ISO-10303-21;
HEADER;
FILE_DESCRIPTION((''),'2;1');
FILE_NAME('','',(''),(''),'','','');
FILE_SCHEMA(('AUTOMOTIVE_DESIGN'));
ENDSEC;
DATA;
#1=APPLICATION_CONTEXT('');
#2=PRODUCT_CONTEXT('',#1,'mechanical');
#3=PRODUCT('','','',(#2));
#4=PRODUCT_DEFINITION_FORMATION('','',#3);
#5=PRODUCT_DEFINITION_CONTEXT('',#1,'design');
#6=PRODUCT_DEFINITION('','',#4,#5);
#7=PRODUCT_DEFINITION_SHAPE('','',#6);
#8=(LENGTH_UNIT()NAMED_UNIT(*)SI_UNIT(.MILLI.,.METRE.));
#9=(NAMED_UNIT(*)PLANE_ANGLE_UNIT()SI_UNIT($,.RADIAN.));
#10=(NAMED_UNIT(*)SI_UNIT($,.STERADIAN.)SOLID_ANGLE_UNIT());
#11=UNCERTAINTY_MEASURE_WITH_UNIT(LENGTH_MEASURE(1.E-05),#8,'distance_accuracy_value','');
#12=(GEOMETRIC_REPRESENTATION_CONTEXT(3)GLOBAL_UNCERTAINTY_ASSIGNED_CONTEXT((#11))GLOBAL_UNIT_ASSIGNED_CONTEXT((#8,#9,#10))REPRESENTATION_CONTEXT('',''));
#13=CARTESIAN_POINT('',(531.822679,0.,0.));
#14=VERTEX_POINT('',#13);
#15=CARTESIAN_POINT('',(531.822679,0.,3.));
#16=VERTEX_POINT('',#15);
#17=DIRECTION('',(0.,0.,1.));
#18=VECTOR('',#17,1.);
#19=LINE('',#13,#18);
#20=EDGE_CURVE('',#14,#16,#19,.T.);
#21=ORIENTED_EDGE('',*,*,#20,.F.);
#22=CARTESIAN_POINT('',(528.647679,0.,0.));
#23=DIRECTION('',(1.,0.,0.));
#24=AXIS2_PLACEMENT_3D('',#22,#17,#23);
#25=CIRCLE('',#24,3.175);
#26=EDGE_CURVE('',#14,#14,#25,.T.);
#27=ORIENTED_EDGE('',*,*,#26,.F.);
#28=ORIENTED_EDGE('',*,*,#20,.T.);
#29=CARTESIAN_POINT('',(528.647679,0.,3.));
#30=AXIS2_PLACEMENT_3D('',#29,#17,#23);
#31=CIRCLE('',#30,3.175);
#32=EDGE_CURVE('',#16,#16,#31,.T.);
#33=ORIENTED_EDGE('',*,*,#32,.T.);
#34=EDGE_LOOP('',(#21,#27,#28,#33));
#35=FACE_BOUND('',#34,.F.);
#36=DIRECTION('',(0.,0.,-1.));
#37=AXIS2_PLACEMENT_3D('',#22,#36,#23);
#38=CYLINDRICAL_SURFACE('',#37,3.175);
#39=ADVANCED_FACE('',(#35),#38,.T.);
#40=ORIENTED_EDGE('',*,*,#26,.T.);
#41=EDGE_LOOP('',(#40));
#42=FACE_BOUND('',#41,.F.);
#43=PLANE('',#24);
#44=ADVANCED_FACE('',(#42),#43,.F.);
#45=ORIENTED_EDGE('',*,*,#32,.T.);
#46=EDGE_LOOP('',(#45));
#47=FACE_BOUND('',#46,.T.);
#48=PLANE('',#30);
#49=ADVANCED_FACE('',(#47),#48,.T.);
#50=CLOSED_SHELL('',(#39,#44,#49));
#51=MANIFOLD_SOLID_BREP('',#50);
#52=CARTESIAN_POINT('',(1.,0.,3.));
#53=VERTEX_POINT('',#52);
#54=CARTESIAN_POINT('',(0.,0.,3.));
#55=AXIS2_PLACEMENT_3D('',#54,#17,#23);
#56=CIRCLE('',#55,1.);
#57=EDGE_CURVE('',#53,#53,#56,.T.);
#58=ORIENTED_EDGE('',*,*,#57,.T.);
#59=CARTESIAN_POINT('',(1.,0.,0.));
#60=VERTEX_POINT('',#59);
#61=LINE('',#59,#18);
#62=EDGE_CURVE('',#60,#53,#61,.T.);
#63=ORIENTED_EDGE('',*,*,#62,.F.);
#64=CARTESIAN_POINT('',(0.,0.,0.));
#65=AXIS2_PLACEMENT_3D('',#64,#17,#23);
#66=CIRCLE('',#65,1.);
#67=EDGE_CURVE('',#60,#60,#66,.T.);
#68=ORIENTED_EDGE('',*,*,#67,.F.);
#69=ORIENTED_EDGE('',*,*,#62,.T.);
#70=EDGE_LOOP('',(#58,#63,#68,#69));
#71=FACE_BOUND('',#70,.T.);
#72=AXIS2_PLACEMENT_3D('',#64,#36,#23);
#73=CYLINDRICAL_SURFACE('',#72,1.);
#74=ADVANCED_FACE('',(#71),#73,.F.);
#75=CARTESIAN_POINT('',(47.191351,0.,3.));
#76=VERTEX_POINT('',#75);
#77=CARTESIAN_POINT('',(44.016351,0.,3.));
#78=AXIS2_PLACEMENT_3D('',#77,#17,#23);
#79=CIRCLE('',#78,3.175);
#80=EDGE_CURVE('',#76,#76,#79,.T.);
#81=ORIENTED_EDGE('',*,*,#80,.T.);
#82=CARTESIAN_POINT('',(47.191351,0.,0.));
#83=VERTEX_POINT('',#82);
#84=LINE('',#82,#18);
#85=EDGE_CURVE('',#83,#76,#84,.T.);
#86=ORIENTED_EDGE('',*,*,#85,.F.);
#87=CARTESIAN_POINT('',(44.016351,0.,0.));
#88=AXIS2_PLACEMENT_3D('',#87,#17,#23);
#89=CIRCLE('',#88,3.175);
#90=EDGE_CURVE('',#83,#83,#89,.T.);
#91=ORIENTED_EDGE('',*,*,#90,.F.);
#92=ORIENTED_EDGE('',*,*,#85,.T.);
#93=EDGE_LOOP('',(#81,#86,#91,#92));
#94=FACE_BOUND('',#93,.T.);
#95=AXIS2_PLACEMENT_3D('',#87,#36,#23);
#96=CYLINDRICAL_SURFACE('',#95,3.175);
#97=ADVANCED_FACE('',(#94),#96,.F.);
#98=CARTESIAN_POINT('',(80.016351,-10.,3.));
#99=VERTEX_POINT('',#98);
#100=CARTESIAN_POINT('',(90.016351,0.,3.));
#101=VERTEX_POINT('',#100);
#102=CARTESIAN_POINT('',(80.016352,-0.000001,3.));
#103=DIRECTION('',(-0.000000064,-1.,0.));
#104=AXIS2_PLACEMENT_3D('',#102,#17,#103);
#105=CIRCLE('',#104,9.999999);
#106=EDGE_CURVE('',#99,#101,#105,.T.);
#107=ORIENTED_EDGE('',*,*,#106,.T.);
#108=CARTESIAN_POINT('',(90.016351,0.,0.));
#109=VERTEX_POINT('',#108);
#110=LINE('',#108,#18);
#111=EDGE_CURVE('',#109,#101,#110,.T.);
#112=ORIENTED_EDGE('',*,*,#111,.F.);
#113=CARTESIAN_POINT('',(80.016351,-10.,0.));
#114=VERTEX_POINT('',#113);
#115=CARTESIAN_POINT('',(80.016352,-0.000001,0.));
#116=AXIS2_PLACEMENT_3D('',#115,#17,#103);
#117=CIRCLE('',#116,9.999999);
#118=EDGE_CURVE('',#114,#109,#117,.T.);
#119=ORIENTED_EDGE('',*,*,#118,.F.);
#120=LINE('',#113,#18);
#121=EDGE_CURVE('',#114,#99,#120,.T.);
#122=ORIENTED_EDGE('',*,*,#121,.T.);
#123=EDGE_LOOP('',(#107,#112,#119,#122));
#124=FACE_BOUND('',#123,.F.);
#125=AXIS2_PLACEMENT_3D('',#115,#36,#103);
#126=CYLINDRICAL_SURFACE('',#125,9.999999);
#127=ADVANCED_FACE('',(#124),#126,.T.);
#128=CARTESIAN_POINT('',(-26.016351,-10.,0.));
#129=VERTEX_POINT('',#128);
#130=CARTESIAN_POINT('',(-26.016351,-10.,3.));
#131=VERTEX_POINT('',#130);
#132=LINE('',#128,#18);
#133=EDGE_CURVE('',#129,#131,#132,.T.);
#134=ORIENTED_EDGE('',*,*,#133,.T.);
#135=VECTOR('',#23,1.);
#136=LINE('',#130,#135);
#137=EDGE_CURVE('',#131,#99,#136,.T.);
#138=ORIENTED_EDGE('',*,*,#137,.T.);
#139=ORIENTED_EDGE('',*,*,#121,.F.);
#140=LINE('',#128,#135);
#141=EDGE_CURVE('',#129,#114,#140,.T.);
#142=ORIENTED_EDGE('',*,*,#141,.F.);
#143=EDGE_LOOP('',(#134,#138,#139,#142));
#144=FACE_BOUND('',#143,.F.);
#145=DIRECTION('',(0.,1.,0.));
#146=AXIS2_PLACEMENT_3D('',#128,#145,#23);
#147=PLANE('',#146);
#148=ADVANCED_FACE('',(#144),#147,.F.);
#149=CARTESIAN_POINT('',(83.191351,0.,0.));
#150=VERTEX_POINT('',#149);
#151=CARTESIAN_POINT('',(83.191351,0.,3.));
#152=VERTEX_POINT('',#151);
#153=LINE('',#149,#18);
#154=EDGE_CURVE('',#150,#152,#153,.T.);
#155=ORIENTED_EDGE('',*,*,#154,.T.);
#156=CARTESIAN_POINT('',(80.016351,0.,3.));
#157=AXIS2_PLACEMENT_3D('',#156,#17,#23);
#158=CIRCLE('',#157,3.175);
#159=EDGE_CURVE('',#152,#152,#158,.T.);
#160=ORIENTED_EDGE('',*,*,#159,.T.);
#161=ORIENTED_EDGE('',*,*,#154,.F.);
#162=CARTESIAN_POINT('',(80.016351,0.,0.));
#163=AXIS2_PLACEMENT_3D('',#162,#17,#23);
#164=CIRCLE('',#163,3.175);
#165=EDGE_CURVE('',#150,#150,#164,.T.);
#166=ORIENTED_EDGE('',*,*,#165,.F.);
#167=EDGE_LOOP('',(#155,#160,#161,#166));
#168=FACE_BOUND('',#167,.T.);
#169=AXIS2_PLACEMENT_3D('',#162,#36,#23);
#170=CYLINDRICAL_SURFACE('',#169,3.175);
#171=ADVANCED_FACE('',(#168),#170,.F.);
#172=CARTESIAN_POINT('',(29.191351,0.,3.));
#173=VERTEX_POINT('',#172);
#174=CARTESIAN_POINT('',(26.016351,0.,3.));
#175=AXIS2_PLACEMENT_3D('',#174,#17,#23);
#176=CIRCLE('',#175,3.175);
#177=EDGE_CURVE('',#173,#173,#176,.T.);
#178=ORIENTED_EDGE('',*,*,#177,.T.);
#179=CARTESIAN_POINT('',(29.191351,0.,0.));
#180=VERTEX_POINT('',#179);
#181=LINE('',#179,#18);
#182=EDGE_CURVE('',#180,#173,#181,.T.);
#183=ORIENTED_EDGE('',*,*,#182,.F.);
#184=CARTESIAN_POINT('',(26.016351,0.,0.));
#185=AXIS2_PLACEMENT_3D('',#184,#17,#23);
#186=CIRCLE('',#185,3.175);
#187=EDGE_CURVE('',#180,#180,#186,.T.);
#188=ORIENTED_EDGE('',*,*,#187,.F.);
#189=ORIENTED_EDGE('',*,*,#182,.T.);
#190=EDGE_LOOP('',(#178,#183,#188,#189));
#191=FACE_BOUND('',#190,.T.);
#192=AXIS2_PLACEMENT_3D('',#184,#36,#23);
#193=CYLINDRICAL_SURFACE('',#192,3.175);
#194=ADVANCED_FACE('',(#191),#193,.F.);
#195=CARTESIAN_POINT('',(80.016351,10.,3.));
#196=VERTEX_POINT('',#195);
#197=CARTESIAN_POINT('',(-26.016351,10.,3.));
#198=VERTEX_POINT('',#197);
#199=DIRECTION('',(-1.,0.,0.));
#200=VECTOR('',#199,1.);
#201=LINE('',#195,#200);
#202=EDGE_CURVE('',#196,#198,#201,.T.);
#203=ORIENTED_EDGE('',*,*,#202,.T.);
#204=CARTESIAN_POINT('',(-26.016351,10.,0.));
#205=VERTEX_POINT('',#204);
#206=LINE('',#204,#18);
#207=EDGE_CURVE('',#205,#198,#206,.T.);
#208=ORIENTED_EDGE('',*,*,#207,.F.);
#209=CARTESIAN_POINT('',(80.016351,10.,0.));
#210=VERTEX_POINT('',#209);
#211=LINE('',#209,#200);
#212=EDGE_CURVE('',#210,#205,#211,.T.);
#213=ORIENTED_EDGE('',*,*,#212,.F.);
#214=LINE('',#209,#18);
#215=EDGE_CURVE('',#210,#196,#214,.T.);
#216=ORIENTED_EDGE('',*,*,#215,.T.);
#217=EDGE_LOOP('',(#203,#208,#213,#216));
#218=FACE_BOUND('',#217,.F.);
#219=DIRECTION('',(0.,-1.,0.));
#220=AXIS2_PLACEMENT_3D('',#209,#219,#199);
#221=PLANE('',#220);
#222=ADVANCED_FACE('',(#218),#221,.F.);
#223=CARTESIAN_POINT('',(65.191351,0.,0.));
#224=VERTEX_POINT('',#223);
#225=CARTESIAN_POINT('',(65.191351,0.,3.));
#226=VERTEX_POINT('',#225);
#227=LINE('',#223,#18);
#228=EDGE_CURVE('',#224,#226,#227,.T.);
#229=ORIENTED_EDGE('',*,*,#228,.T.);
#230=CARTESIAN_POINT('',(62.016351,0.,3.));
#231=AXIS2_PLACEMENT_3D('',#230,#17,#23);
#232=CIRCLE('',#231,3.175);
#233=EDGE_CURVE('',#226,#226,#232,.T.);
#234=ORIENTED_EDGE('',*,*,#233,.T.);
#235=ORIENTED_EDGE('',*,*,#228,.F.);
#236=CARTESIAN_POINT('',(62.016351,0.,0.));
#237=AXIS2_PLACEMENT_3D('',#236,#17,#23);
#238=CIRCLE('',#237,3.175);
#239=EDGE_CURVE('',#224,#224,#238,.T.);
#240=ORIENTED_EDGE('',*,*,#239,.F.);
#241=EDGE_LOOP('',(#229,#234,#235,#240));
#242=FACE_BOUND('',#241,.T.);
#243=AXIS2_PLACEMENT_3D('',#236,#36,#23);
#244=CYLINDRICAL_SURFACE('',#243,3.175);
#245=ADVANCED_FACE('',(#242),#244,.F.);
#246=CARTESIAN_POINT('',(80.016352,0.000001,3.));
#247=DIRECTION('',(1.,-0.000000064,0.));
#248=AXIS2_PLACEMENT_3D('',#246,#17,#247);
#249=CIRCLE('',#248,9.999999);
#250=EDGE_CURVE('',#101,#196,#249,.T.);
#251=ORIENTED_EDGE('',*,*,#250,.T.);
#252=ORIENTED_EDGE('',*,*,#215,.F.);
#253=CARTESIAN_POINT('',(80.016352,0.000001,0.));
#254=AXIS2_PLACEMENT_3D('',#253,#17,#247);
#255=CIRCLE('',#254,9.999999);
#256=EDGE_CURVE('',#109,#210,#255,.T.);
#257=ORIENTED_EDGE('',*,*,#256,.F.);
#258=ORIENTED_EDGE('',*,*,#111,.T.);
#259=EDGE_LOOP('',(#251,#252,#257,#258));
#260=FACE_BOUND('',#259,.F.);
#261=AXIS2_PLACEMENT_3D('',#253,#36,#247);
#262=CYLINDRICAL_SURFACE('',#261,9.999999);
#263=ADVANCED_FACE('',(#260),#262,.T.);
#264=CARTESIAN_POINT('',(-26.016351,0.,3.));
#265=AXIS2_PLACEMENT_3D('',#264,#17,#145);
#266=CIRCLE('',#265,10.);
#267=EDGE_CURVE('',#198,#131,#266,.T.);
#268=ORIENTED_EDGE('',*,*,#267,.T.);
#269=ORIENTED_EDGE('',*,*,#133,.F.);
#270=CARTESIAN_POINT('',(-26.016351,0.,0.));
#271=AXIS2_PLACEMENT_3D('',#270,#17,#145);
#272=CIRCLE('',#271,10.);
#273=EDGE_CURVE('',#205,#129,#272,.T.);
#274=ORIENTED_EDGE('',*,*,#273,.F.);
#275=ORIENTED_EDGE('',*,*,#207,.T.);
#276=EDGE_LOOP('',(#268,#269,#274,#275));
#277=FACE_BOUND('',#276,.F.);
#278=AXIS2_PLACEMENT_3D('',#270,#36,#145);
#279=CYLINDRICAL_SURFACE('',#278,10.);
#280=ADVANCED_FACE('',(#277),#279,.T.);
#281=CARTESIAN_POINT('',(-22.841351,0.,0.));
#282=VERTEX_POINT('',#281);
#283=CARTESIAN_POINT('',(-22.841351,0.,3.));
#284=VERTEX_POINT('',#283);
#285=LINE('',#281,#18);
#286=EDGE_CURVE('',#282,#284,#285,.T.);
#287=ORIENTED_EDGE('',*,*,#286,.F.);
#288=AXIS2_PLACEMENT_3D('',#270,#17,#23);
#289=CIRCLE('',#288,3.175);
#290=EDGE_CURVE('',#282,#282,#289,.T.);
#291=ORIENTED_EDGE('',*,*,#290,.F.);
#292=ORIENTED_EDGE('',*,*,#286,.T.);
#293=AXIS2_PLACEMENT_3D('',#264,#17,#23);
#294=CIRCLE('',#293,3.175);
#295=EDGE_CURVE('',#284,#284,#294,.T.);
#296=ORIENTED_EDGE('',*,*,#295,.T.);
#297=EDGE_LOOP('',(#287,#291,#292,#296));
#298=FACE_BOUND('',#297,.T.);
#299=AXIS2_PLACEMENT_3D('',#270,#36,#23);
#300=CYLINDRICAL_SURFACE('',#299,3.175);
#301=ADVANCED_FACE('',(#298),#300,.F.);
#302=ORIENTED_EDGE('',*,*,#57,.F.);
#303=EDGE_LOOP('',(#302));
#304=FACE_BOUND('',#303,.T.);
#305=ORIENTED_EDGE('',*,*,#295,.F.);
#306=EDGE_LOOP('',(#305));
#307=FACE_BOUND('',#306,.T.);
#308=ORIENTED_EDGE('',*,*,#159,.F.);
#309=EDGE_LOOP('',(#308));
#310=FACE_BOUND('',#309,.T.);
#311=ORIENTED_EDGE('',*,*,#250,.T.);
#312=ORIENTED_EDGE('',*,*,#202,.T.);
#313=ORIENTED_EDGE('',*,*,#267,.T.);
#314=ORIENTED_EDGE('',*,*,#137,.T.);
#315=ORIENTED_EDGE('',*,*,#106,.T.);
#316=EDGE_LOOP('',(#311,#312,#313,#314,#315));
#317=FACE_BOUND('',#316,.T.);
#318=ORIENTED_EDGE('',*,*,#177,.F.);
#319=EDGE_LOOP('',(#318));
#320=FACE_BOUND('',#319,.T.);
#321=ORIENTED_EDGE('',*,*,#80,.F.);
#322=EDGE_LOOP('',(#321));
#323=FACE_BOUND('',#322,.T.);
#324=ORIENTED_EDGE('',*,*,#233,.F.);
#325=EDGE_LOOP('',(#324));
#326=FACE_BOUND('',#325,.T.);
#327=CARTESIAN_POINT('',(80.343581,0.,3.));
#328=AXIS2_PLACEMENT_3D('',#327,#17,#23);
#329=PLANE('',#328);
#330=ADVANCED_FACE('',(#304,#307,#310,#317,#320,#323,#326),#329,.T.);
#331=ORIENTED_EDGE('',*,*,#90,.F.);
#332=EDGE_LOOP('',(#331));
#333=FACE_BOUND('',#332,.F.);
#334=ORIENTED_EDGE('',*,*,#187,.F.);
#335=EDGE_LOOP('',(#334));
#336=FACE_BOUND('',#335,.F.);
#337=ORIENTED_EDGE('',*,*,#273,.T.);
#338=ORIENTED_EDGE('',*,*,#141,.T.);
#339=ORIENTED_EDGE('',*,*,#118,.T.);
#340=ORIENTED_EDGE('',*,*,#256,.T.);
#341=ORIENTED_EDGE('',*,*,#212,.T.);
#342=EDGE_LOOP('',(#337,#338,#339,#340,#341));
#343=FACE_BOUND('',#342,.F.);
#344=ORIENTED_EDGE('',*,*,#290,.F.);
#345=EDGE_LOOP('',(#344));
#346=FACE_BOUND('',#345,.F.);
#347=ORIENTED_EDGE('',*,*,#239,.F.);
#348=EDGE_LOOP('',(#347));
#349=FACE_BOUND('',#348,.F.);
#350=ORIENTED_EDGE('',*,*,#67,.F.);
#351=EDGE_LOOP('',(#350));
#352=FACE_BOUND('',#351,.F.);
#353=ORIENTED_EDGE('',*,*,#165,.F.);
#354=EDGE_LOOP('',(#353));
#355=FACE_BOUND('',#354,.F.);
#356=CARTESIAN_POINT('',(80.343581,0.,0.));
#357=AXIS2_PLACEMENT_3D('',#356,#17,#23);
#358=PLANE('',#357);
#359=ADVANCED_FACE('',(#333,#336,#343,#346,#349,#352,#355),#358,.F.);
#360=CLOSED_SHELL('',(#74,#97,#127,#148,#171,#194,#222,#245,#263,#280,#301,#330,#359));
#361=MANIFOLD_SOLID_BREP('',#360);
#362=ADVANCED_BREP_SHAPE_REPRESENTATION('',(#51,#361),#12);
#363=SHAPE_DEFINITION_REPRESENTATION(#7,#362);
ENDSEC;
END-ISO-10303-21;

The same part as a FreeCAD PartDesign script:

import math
import FreeCAD as App
import Part
import Sketcher

V = App.Vector

doc = App.newDocument("Part")
params = doc.addObject("Spreadsheet::Sheet", "Params")
for row, (alias, value) in enumerate([
    ("sketch1_diameter", "2 mm"),
    ("sketch1_radius", "9.999999 mm"),
    ("sketch1_diameter2", "6.35 mm"),
    ("pad1_length", "3 mm"),
], start=1):
    params.set(f"A{row}", alias)
    params.set(f"B{row}", "=" + value)
    params.setAlias(f"B{row}", alias)

body = doc.addObject("PartDesign::Body", "Body")
body.AllowCompound = True

# Sketch on XY plane
sketch1 = doc.addObject("Sketcher::SketchObject", "Sketch")
body.addObject(sketch1)
sketch1.AttachmentSupport = (doc.XY_Plane, [""])
sketch1.MapMode = "FlatFace"
sketch1.addGeometry([
    Part.Circle(V(528.647679, 0, 0), V(0, 0, 1), 3.175),  # 0
    Part.ArcOfCircle(Part.Circle(V(80.016352, -0.000001, 0), V(0, 0, 1), 9.999999), math.radians(-90.000004), math.radians(0.000004)),  # 1
    Part.ArcOfCircle(Part.Circle(V(80.016352, 0.000001, 0), V(0, 0, 1), 9.999999), math.radians(-0.000004), math.radians(90.000004)),  # 2
    Part.LineSegment(V(80.016351, 10, 0), V(-26.016351, 10, 0)),  # 3
    Part.ArcOfCircle(Part.Circle(V(-26.016351, 0, 0), V(0, 0, 1), 10), math.radians(90), math.radians(270)),  # 4
    Part.LineSegment(V(-26.016351, -10, 0), V(80.016351, -10, 0)),  # 5
    Part.Circle(V(-26.016351, 0, 0), V(0, 0, 1), 3.175),  # 6
    Part.Circle(V(0, 0, 0), V(0, 0, 1), 1),  # 7
    Part.Circle(V(26.016351, 0, 0), V(0, 0, 1), 3.175),  # 8
    Part.Circle(V(44.016351, 0, 0), V(0, 0, 1), 3.175),  # 9
    Part.Circle(V(62.016351, 0, 0), V(0, 0, 1), 3.175),  # 10
    Part.Circle(V(80.016351, 0, 0), V(0, 0, 1), 3.175),  # 11
], False)
sketch1.addConstraint([
    Sketcher.Constraint("Tangent", 1, 2, 2, 1),
    Sketcher.Constraint("Tangent", 2, 2, 3, 1),
    Sketcher.Constraint("Tangent", 3, 2, 4, 1),
    Sketcher.Constraint("Tangent", 4, 2, 5, 1),
    Sketcher.Constraint("Tangent", 5, 2, 1, 1),
    Sketcher.Constraint("Horizontal", 3),
    Sketcher.Constraint("Horizontal", 5),
    Sketcher.Constraint("Coincident", 7, 3, -1, 1),
    Sketcher.Constraint("Coincident", 6, 3, 4, 3),
    Sketcher.Constraint("Coincident", 11, 3, 1, 3),
    Sketcher.Constraint("Equal", 1, 2),
    Sketcher.Constraint("Equal", 0, 6),
    Sketcher.Constraint("Equal", 6, 8),
    Sketcher.Constraint("Equal", 8, 9),
    Sketcher.Constraint("Equal", 9, 10),
    Sketcher.Constraint("Equal", 10, 11),
    Sketcher.Constraint("Symmetric", 4, 3, 8, 3, -1, 1),
    Sketcher.Constraint("PointOnObject", 0, 3, -1),
    Sketcher.Constraint("PointOnObject", 1, 3, -1),
    Sketcher.Constraint("PointOnObject", 9, 3, -1),
    Sketcher.Constraint("PointOnObject", 10, 3, -1),
    Sketcher.Constraint("PointOnObject", 1, 2, -1),
    Sketcher.Constraint("Diameter", 7, 2.0),
    Sketcher.Constraint("Radius", 1, 9.999999),
    Sketcher.Constraint("Diameter", 0, 6.35),
    Sketcher.Constraint("DistanceX", 8, 3, 1, 3, 54.000001),
    Sketcher.Constraint("DistanceX", 8, 3, 9, 3, 18.0),
    Sketcher.Constraint("DistanceX", 9, 3, 10, 3, 18.0),
    Sketcher.Constraint("DistanceX", 3, 2, 3, 1, 106.032702),
    Sketcher.Constraint("DistanceX", -1, 1, 0, 3, 528.647679),
])
sketch1.setExpression("Constraints[22]", "Params.sketch1_diameter")
sketch1.setExpression("Constraints[23]", "Params.sketch1_radius")
sketch1.setExpression("Constraints[24]", "Params.sketch1_diameter2")
pad1 = doc.addObject("PartDesign::Pad", "Pad")
body.addObject(pad1)
pad1.Profile = sketch1
pad1.setExpression("Length", "Params.pad1_length")

doc.recompute()
